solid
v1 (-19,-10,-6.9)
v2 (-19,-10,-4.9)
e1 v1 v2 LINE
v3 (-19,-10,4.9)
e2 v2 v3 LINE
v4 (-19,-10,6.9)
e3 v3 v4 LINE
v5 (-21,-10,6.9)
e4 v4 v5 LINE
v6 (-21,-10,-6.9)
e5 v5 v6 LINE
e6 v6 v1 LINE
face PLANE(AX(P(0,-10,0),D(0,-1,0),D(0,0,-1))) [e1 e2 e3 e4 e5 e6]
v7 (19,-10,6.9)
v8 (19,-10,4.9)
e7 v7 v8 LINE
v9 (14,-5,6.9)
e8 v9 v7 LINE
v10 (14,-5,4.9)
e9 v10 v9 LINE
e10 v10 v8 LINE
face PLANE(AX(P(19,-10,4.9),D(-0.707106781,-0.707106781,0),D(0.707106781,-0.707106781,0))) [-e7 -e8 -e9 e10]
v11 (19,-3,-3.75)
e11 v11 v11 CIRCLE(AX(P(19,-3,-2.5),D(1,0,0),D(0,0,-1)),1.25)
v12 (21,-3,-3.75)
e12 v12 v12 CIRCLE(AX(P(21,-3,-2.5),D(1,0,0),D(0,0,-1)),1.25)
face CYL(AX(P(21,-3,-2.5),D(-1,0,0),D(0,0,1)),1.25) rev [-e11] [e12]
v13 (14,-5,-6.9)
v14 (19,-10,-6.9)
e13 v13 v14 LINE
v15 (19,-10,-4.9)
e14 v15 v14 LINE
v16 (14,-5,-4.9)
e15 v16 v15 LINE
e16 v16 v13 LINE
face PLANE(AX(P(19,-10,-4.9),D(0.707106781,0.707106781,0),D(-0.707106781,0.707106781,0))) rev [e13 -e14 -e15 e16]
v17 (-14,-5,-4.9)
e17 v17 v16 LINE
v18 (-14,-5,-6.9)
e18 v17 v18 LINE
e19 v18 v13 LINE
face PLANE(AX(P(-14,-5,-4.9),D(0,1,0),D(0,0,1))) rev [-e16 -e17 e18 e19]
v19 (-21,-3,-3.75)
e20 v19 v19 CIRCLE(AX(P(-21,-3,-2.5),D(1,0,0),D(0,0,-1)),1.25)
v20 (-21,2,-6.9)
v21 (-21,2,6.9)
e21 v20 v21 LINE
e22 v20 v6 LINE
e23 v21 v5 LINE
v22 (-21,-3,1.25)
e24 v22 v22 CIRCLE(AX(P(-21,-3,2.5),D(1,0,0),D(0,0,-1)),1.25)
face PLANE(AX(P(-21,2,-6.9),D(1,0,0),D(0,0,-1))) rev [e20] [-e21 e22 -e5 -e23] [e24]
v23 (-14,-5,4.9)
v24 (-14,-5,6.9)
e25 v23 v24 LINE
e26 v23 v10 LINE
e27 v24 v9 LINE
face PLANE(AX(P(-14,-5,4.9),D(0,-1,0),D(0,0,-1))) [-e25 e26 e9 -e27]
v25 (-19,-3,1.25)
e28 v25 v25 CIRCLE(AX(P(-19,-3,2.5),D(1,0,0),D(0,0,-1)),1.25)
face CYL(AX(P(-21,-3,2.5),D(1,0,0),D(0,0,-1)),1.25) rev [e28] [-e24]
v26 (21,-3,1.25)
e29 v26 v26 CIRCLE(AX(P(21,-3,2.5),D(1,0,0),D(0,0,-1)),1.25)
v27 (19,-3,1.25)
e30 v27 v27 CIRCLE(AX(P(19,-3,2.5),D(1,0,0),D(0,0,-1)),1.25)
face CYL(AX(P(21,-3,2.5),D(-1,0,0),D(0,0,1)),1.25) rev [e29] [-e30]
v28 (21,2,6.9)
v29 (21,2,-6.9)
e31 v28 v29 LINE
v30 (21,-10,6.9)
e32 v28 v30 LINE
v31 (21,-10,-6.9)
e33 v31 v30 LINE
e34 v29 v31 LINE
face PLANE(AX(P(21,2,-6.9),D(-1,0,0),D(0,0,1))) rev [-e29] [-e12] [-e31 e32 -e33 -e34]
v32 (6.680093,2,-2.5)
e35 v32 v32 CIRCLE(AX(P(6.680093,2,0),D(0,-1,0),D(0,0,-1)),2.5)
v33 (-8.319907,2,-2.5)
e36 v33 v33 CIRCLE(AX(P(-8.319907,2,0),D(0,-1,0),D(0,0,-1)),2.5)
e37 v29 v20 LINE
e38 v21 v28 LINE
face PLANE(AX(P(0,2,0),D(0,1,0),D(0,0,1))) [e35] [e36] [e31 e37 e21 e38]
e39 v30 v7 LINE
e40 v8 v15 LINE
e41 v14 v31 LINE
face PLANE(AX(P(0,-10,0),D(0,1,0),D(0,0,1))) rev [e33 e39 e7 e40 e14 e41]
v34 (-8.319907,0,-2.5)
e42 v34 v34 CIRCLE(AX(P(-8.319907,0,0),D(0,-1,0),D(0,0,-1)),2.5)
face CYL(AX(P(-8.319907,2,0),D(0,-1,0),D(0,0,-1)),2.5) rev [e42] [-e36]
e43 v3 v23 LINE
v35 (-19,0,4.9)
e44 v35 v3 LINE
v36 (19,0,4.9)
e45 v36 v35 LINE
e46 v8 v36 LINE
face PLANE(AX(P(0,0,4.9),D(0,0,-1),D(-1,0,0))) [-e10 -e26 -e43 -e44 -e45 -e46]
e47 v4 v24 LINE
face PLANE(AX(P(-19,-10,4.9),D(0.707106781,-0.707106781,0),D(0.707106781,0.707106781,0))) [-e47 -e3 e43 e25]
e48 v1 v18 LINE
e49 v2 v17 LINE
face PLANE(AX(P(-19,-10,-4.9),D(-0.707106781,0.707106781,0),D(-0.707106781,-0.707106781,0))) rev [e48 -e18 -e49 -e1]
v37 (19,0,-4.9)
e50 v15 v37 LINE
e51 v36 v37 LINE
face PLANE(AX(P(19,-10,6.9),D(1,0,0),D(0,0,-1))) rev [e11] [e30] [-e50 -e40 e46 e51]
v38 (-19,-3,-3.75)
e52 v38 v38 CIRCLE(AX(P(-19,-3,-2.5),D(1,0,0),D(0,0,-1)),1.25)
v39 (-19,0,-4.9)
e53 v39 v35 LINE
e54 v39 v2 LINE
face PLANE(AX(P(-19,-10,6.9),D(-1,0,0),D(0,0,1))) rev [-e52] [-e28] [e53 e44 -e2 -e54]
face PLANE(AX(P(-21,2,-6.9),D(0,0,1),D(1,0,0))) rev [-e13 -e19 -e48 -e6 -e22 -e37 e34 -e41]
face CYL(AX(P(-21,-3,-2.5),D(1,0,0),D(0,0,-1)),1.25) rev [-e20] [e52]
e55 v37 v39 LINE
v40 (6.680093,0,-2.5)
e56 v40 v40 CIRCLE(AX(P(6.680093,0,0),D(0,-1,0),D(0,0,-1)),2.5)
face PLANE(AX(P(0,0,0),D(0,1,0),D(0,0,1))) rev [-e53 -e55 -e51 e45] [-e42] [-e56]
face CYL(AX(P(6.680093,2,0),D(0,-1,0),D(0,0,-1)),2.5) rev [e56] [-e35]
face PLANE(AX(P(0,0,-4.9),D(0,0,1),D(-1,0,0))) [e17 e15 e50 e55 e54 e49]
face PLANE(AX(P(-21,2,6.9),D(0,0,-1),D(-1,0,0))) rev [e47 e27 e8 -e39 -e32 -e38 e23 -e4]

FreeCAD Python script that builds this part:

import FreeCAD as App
import Part
import Sketcher

V = App.Vector
Q = App.Units.Quantity

doc = App.newDocument("Part")
params = doc.addObject("Spreadsheet::Sheet", "Params")
for row, (alias, value) in enumerate([
    ("sketch1_width", "42 mm"),
    ("sketch1_height", "13.8 mm"),
    ("pad1_length", "2 mm"),
    ("sketch2_width", "2 mm"),
    ("sketch2_height", "13.8 mm"),
    ("pad2_length", "10 mm"),
    ("sketch3_width", "38 mm"),
    ("sketch3_width2", "28 mm"),
    ("sketch3_height", "10 mm"),
    ("pad3_length", "2 mm"),
    ("sketch4_diameter", "5 mm"),
    ("pocket1_length", "2 mm"),
    ("sketch5_diameter", "2.5 mm"),
    ("pocket2_length", "2 mm"),
], start=1):
    params.set(f"A{row}", alias)
    params.set(f"B{row}", "=" + value)
    params.setAlias(f"B{row}", alias)

body = doc.addObject("PartDesign::Body", "Body")

# Sketch on XZ plane
sketch1 = body.newObject("Sketcher::SketchObject", "Sketch")
sketch1.AttachmentSupport = (doc.getObject("XZ_Plane"), [""])
sketch1.MapMode = "FlatFace"
sketch1.addGeometry([
    Part.LineSegment(V(-21, -7, 0), V(-21, 7, 0)),
    Part.LineSegment(V(-21, 7, 0), V(21, 7, 0)),
    Part.LineSegment(V(21, 7, 0), V(21, -7, 0)),
    Part.LineSegment(V(21, -7, 0), V(-21, -7, 0)),
], False)
sketch1.addConstraint([
    Sketcher.Constraint("Coincident", 0, 2, 1, 1),
    Sketcher.Constraint("Coincident", 1, 2, 2, 1),
    Sketcher.Constraint("Coincident", 2, 2, 3, 1),
    Sketcher.Constraint("Coincident", 3, 2, 0, 1),
    Sketcher.Constraint("Vertical", 0),
    Sketcher.Constraint("Horizontal", 1),
    Sketcher.Constraint("Vertical", 2),
    Sketcher.Constraint("Horizontal", 3),
    Sketcher.Constraint("Symmetric", 0, 2, 2, 2, -1, 1),
    Sketcher.Constraint("DistanceX", 1, 1, 1, 2, Q("42 mm")),
    Sketcher.Constraint("DistanceY", 0, 1, 0, 2, Q("13.8 mm")),
])
sketch1.setExpression("Constraints[9]", "Params.sketch1_width")
sketch1.setExpression("Constraints[10]", "Params.sketch1_height")
pad1 = body.newObject("PartDesign::Pad", "Pad")
pad1.Profile = sketch1
pad1.setExpression("Length", "Params.pad1_length")
pad1.Reversed = True

# Sketch on XZ plane
sketch2 = body.newObject("Sketcher::SketchObject", "Sketch001")
sketch2.AttachmentSupport = (doc.getObject("XZ_Plane"), [""])
sketch2.MapMode = "FlatFace"
sketch2.addGeometry([
    Part.LineSegment(V(-21, 6.9, 0), V(-21, -6.9, 0)),  # 0
    Part.LineSegment(V(-21, -6.9, 0), V(-19, -6.9, 0)),  # 1
    Part.LineSegment(V(-19, -6.9, 0), V(-19, 6.9, 0)),  # 2
    Part.LineSegment(V(-19, 6.9, 0), V(-21, 6.9, 0)),  # 3
    Part.LineSegment(V(19, 6.9, 0), V(19, -6.9, 0)),  # 4
    Part.LineSegment(V(19, -6.9, 0), V(21, -6.9, 0)),  # 5
    Part.LineSegment(V(21, -6.9, 0), V(21, 6.9, 0)),  # 6
    Part.LineSegment(V(21, 6.9, 0), V(19, 6.9, 0)),  # 7
], False)
sketch2.addConstraint([
    Sketcher.Constraint("Coincident", 0, 2, 1, 1),
    Sketcher.Constraint("Coincident", 1, 2, 2, 1),
    Sketcher.Constraint("Coincident", 2, 2, 3, 1),
    Sketcher.Constraint("Coincident", 3, 2, 0, 1),
    Sketcher.Constraint("Coincident", 4, 2, 5, 1),
    Sketcher.Constraint("Coincident", 5, 2, 6, 1),
    Sketcher.Constraint("Coincident", 6, 2, 7, 1),
    Sketcher.Constraint("Coincident", 7, 2, 4, 1),
    Sketcher.Constraint("Vertical", 0),
    Sketcher.Constraint("Horizontal", 1),
    Sketcher.Constraint("Vertical", 2),
    Sketcher.Constraint("Horizontal", 3),
    Sketcher.Constraint("Vertical", 4),
    Sketcher.Constraint("Horizontal", 5),
    Sketcher.Constraint("Vertical", 6),
    Sketcher.Constraint("Horizontal", 7),
    Sketcher.Constraint("Symmetric", 2, 2, 4, 2, -1, 1),
    Sketcher.Constraint("Symmetric", 0, 2, 6, 2, -1, 1),
    Sketcher.Constraint("Horizontal", 1, 2, 4, 2),
    Sketcher.Constraint("DistanceX", 1, 1, 1, 2, Q("2 mm")),
    Sketcher.Constraint("DistanceY", 0, 2, 0, 1, Q("13.8 mm")),
    Sketcher.Constraint("DistanceX", 0, 2, -1, 1, Q("21 mm")),
])
sketch2.setExpression("Constraints[19]", "Params.sketch2_width")
sketch2.setExpression("Constraints[20]", "Params.sketch2_height")
pad2 = body.newObject("PartDesign::Pad", "Pad001")
pad2.Profile = sketch2
pad2.setExpression("Length", "Params.pad2_length")

# Sketch on XY plane
sketch3 = body.newObject("Sketcher::SketchObject", "Sketch002")
sketch3.AttachmentSupport = (doc.getObject("XY_Plane"), [""])
sketch3.MapMode = "FlatFace"
sketch3.AttachmentOffset = App.Placement(V(0, 0, 6.9), App.Rotation())
sketch3.addGeometry([
    Part.LineSegment(V(19, 0, 0), V(-19, 0, 0)),  # 0
    Part.LineSegment(V(-19, 0, 0), V(-19, -10, 0)),  # 1
    Part.LineSegment(V(-19, -10, 0), V(-14, -5, 0)),  # 2
    Part.LineSegment(V(-14, -5, 0), V(14, -5, 0)),  # 3
    Part.LineSegment(V(14, -5, 0), V(19, -10, 0)),  # 4
    Part.LineSegment(V(19, -10, 0), V(19, 0, 0)),  # 5
], False)
sketch3.addConstraint([
    Sketcher.Constraint("Coincident", 0, 2, 1, 1),
    Sketcher.Constraint("Coincident", 1, 2, 2, 1),
    Sketcher.Constraint("Coincident", 2, 2, 3, 1),
    Sketcher.Constraint("Coincident", 3, 2, 4, 1),
    Sketcher.Constraint("Coincident", 4, 2, 5, 1),
    Sketcher.Constraint("Coincident", 5, 2, 0, 1),
    Sketcher.Constraint("Horizontal", 0),
    Sketcher.Constraint("Vertical", 1),
    Sketcher.Constraint("Horizontal", 3),
    Sketcher.Constraint("Vertical", 5),
    Sketcher.Constraint("Symmetric", 0, 2, 5, 2, -1, 1),
    Sketcher.Constraint("Perpendicular", 2, 4),
    Sketcher.Constraint("Horizontal", 1, 2, 4, 2),
    Sketcher.Constraint("Equal", 2, 4),
    Sketcher.Constraint("DistanceX", 0, 2, 0, 1, Q("38 mm")),
    Sketcher.Constraint("DistanceX", 3, 1, 3, 2, Q("28 mm")),
    Sketcher.Constraint("DistanceY", 1, 2, 1, 1, Q("10 mm")),
])
sketch3.setExpression("Constraints[14]", "Params.sketch3_width")
sketch3.setExpression("Constraints[15]", "Params.sketch3_width2")
sketch3.setExpression("Constraints[16]", "Params.sketch3_height")
pad3 = body.newObject("PartDesign::Pad", "Pad002")
pad3.Profile = sketch3
pad3.setExpression("Length", "Params.pad3_length")
pad3.Reversed = True
doc.recompute()

mirrored = body.newObject("PartDesign::Mirrored", "Mirrored")
mirrored.Originals = [pad3]
mirrored.MirrorPlane = (doc.getObject("XY_Plane"), [""])
body.Tip = mirrored

# Sketch on XZ plane
sketch4 = body.newObject("Sketcher::SketchObject", "Sketch003")
sketch4.AttachmentSupport = (doc.getObject("XZ_Plane"), [""])
sketch4.MapMode = "FlatFace"
sketch4.addGeometry([
    Part.Circle(V(-8.3, 0, 0), V(0, 0, 1), 2.5),
    Part.Circle(V(6.7, 0, 0), V(0, 0, 1), 2.5),
], False)
sketch4.addConstraint([
    Sketcher.Constraint("Equal", 0, 1),
    Sketcher.Constraint("PointOnObject", 0, 3, -1),
    Sketcher.Constraint("PointOnObject", 1, 3, -1),
    Sketcher.Constraint("Diameter", 0, Q("5 mm")),
    Sketcher.Constraint("DistanceX", 0, 3, 1, 3, Q("15 mm")),
    Sketcher.Constraint("DistanceX", 0, 3, -1, 1, Q("8.319907 mm")),
])
sketch4.setExpression("Constraints[3]", "Params.sketch4_diameter")
pocket1 = body.newObject("PartDesign::Pocket", "Pocket")
pocket1.Profile = sketch4
pocket1.setExpression("Length", "Params.pocket1_length")

# Sketch on YZ plane
sketch5 = body.newObject("Sketcher::SketchObject", "Sketch004")
sketch5.AttachmentSupport = (doc.getObject("YZ_Plane"), [""])
sketch5.MapMode = "FlatFace"
sketch5.AttachmentOffset = App.Placement(V(0, 0, -19), App.Rotation())
sketch5.addGeometry([
    Part.Circle(V(-3, 2.5, 0), V(0, 0, 1), 1.2),
    Part.Circle(V(-3, -2.5, 0), V(0, 0, 1), 1.2),
], False)
sketch5.addConstraint([
    Sketcher.Constraint("Equal", 0, 1),
    Sketcher.Constraint("Symmetric", 0, 3, 1, 3, -1),
    Sketcher.Constraint("Diameter", 0, Q("2.5 mm")),
    Sketcher.Constraint("DistanceX", 0, 3, -1, 1, Q("3 mm")),
    Sketcher.Constraint("DistanceY", 1, 3, 0, 3, Q("5 mm")),
])
sketch5.setExpression("Constraints[2]", "Params.sketch5_diameter")
pocket2 = body.newObject("PartDesign::Pocket", "Pocket001")
pocket2.Profile = sketch5
pocket2.setExpression("Length", "Params.pocket2_length")
doc.recompute()

mirrored2 = body.newObject("PartDesign::Mirrored", "Mirrored001")
mirrored2.Originals = [pocket2]
mirrored2.MirrorPlane = (doc.getObject("YZ_Plane"), [""])
body.Tip = mirrored2

doc.recompute()
